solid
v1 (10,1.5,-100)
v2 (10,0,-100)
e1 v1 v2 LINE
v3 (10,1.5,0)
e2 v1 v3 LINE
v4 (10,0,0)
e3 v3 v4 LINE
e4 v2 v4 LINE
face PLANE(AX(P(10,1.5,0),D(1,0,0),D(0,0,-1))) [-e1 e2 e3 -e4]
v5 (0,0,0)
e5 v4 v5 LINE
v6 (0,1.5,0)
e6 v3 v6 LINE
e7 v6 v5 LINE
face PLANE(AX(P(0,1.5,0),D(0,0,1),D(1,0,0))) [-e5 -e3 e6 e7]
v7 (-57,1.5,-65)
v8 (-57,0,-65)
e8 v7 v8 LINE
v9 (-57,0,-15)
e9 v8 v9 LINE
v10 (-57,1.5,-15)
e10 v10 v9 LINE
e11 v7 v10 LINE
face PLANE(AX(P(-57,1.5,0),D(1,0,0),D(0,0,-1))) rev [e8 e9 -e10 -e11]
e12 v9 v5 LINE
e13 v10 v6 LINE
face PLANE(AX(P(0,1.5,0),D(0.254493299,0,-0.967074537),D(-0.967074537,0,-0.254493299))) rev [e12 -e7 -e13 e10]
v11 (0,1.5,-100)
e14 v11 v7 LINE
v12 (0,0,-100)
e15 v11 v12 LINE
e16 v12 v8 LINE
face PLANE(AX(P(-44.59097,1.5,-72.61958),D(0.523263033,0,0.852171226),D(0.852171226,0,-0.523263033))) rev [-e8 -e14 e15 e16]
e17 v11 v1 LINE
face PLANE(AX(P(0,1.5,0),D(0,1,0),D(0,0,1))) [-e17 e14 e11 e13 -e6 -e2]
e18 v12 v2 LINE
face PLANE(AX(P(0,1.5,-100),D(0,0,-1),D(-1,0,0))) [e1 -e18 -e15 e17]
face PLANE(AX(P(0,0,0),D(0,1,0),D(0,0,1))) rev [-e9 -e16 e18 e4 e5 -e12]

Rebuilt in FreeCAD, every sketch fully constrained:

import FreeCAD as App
import Part
import Sketcher
Q = App.Units.Quantity


def add_polygon(sketch, points):
    """Adds a closed chain of lines whose ends are joined by coincident constraints."""
    first, n = sketch.GeometryCount, len(points)
    for a, b in zip(points, points[1:] + points[:1]):
        sketch.addGeometry(Part.LineSegment(App.Vector(*a, 0), App.Vector(*b, 0)), False)
    for i in range(n):
        sketch.addConstraint(Sketcher.Constraint("Coincident", first + i, 2, first + (i + 1) % n, 1))

doc = App.newDocument("Part")
body = doc.addObject("PartDesign::Body", "Body")

# Sketch on XZ plane
sketch1 = body.newObject("Sketcher::SketchObject", "Sketch")
sketch1.AttachmentSupport = (doc.getObject("XZ_Plane"), [""])
sketch1.MapMode = "FlatFace"
add_polygon(sketch1, [(-57, -65), (-57, -15), (0, 0), (10, 0), (10, -100), (0, -100)])  # lines 0-5
sketch1.addConstraint([
    Sketcher.Constraint("Vertical", 0),
    Sketcher.Constraint("Horizontal", 2),
    Sketcher.Constraint("Vertical", 3),
    Sketcher.Constraint("Horizontal", 4),
    Sketcher.Constraint("Coincident", 1, 2, -1, 1),
    Sketcher.Constraint("PointOnObject", 4, 2, -2),
    Sketcher.Constraint("DistanceX", 2, 1, 2, 2, Q("10 mm")),
    Sketcher.Constraint("DistanceY", 0, 1, 0, 2, Q("50 mm")),
    Sketcher.Constraint("DistanceY", 3, 2, 3, 1, Q("100 mm")),
    Sketcher.Constraint("DistanceX", 0, 2, -1, 1, Q("57 mm")),
    Sketcher.Constraint("DistanceY", 0, 2, -1, 1, Q("15 mm")),
])
pad1 = body.newObject("PartDesign::Pad", "Pad")
pad1.Profile = sketch1
pad1.Length = 1.5
pad1.Reversed = True

doc.recompute()
